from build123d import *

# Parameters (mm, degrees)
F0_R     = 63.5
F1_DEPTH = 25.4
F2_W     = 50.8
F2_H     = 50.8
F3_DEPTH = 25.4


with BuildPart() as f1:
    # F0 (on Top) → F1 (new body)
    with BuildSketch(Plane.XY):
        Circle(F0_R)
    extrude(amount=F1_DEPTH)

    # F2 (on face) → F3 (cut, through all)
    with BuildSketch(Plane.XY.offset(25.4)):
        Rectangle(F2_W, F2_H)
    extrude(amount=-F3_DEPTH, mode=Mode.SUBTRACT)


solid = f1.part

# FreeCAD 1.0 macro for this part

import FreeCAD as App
import Part
import Sketcher
Q = App.Units.Quantity


def add_polygon(sketch, points):
    """Adds a closed chain of lines whose ends are joined by coincident constraints."""
    first, n = sketch.GeometryCount, len(points)
    for a, b in zip(points, points[1:] + points[:1]):
        sketch.addGeometry(Part.LineSegment(App.Vector(*a, 0), App.Vector(*b, 0)), False)
    for i in range(n):
        sketch.addConstraint(Sketcher.Constraint("Coincident", first + i, 2, first + (i + 1) % n, 1))

doc = App.newDocument("Part")
body = doc.addObject("PartDesign::Body", "Body")

sketch1 = doc.addObject("Sketcher::SketchObject", "Sketch")
body.addObject(sketch1)
sketch1.AttachmentSupport = (doc.XY_Plane, [""])
sketch1.MapMode = "FlatFace"
sketch1.addGeometry(Part.Circle(App.Vector(0, 0, 0), App.Vector(0, 0, 1), 64), False)
sketch1.addConstraint(Sketcher.Constraint("Coincident", 0, 3, -1, 1))
sketch1.addConstraint(Sketcher.Constraint("Diameter", 0, Q("5 in")))
pad1 = doc.addObject("PartDesign::Pad", "Pad")
body.addObject(pad1)
pad1.Profile = sketch1
pad1.Length = Q("1 in")

sketch2 = doc.addObject("Sketcher::SketchObject", "Sketch001")
body.addObject(sketch2)
sketch2.AttachmentSupport = (doc.XY_Plane, [""])
sketch2.MapMode = "FlatFace"
sketch2.AttachmentOffset = App.Placement(App.Vector(0, 0, 1 * 25.4), App.Rotation())
add_polygon(sketch2, [(-25, 25), (-25, -25), (25, -25), (25, 25)])
sketch2.addConstraint(Sketcher.Constraint("Vertical", 0))
sketch2.addConstraint(Sketcher.Constraint("Horizontal", 1))
sketch2.addConstraint(Sketcher.Constraint("Vertical", 2))
sketch2.addConstraint(Sketcher.Constraint("Horizontal", 3))
sketch2.addConstraint(Sketcher.Constraint("Symmetric", 0, 2, 2, 2, -1, 1))
sketch2.addConstraint(Sketcher.Constraint("Equal", 3, 0))
sketch2.addConstraint(Sketcher.Constraint("DistanceX", 1, 1, 1, 2, Q("2 in")))
pocket1 = doc.addObject("PartDesign::Pocket", "Pocket")
body.addObject(pocket1)
pocket1.Profile = sketch2
pocket1.Type = "ThroughAll"

doc.recompute()
